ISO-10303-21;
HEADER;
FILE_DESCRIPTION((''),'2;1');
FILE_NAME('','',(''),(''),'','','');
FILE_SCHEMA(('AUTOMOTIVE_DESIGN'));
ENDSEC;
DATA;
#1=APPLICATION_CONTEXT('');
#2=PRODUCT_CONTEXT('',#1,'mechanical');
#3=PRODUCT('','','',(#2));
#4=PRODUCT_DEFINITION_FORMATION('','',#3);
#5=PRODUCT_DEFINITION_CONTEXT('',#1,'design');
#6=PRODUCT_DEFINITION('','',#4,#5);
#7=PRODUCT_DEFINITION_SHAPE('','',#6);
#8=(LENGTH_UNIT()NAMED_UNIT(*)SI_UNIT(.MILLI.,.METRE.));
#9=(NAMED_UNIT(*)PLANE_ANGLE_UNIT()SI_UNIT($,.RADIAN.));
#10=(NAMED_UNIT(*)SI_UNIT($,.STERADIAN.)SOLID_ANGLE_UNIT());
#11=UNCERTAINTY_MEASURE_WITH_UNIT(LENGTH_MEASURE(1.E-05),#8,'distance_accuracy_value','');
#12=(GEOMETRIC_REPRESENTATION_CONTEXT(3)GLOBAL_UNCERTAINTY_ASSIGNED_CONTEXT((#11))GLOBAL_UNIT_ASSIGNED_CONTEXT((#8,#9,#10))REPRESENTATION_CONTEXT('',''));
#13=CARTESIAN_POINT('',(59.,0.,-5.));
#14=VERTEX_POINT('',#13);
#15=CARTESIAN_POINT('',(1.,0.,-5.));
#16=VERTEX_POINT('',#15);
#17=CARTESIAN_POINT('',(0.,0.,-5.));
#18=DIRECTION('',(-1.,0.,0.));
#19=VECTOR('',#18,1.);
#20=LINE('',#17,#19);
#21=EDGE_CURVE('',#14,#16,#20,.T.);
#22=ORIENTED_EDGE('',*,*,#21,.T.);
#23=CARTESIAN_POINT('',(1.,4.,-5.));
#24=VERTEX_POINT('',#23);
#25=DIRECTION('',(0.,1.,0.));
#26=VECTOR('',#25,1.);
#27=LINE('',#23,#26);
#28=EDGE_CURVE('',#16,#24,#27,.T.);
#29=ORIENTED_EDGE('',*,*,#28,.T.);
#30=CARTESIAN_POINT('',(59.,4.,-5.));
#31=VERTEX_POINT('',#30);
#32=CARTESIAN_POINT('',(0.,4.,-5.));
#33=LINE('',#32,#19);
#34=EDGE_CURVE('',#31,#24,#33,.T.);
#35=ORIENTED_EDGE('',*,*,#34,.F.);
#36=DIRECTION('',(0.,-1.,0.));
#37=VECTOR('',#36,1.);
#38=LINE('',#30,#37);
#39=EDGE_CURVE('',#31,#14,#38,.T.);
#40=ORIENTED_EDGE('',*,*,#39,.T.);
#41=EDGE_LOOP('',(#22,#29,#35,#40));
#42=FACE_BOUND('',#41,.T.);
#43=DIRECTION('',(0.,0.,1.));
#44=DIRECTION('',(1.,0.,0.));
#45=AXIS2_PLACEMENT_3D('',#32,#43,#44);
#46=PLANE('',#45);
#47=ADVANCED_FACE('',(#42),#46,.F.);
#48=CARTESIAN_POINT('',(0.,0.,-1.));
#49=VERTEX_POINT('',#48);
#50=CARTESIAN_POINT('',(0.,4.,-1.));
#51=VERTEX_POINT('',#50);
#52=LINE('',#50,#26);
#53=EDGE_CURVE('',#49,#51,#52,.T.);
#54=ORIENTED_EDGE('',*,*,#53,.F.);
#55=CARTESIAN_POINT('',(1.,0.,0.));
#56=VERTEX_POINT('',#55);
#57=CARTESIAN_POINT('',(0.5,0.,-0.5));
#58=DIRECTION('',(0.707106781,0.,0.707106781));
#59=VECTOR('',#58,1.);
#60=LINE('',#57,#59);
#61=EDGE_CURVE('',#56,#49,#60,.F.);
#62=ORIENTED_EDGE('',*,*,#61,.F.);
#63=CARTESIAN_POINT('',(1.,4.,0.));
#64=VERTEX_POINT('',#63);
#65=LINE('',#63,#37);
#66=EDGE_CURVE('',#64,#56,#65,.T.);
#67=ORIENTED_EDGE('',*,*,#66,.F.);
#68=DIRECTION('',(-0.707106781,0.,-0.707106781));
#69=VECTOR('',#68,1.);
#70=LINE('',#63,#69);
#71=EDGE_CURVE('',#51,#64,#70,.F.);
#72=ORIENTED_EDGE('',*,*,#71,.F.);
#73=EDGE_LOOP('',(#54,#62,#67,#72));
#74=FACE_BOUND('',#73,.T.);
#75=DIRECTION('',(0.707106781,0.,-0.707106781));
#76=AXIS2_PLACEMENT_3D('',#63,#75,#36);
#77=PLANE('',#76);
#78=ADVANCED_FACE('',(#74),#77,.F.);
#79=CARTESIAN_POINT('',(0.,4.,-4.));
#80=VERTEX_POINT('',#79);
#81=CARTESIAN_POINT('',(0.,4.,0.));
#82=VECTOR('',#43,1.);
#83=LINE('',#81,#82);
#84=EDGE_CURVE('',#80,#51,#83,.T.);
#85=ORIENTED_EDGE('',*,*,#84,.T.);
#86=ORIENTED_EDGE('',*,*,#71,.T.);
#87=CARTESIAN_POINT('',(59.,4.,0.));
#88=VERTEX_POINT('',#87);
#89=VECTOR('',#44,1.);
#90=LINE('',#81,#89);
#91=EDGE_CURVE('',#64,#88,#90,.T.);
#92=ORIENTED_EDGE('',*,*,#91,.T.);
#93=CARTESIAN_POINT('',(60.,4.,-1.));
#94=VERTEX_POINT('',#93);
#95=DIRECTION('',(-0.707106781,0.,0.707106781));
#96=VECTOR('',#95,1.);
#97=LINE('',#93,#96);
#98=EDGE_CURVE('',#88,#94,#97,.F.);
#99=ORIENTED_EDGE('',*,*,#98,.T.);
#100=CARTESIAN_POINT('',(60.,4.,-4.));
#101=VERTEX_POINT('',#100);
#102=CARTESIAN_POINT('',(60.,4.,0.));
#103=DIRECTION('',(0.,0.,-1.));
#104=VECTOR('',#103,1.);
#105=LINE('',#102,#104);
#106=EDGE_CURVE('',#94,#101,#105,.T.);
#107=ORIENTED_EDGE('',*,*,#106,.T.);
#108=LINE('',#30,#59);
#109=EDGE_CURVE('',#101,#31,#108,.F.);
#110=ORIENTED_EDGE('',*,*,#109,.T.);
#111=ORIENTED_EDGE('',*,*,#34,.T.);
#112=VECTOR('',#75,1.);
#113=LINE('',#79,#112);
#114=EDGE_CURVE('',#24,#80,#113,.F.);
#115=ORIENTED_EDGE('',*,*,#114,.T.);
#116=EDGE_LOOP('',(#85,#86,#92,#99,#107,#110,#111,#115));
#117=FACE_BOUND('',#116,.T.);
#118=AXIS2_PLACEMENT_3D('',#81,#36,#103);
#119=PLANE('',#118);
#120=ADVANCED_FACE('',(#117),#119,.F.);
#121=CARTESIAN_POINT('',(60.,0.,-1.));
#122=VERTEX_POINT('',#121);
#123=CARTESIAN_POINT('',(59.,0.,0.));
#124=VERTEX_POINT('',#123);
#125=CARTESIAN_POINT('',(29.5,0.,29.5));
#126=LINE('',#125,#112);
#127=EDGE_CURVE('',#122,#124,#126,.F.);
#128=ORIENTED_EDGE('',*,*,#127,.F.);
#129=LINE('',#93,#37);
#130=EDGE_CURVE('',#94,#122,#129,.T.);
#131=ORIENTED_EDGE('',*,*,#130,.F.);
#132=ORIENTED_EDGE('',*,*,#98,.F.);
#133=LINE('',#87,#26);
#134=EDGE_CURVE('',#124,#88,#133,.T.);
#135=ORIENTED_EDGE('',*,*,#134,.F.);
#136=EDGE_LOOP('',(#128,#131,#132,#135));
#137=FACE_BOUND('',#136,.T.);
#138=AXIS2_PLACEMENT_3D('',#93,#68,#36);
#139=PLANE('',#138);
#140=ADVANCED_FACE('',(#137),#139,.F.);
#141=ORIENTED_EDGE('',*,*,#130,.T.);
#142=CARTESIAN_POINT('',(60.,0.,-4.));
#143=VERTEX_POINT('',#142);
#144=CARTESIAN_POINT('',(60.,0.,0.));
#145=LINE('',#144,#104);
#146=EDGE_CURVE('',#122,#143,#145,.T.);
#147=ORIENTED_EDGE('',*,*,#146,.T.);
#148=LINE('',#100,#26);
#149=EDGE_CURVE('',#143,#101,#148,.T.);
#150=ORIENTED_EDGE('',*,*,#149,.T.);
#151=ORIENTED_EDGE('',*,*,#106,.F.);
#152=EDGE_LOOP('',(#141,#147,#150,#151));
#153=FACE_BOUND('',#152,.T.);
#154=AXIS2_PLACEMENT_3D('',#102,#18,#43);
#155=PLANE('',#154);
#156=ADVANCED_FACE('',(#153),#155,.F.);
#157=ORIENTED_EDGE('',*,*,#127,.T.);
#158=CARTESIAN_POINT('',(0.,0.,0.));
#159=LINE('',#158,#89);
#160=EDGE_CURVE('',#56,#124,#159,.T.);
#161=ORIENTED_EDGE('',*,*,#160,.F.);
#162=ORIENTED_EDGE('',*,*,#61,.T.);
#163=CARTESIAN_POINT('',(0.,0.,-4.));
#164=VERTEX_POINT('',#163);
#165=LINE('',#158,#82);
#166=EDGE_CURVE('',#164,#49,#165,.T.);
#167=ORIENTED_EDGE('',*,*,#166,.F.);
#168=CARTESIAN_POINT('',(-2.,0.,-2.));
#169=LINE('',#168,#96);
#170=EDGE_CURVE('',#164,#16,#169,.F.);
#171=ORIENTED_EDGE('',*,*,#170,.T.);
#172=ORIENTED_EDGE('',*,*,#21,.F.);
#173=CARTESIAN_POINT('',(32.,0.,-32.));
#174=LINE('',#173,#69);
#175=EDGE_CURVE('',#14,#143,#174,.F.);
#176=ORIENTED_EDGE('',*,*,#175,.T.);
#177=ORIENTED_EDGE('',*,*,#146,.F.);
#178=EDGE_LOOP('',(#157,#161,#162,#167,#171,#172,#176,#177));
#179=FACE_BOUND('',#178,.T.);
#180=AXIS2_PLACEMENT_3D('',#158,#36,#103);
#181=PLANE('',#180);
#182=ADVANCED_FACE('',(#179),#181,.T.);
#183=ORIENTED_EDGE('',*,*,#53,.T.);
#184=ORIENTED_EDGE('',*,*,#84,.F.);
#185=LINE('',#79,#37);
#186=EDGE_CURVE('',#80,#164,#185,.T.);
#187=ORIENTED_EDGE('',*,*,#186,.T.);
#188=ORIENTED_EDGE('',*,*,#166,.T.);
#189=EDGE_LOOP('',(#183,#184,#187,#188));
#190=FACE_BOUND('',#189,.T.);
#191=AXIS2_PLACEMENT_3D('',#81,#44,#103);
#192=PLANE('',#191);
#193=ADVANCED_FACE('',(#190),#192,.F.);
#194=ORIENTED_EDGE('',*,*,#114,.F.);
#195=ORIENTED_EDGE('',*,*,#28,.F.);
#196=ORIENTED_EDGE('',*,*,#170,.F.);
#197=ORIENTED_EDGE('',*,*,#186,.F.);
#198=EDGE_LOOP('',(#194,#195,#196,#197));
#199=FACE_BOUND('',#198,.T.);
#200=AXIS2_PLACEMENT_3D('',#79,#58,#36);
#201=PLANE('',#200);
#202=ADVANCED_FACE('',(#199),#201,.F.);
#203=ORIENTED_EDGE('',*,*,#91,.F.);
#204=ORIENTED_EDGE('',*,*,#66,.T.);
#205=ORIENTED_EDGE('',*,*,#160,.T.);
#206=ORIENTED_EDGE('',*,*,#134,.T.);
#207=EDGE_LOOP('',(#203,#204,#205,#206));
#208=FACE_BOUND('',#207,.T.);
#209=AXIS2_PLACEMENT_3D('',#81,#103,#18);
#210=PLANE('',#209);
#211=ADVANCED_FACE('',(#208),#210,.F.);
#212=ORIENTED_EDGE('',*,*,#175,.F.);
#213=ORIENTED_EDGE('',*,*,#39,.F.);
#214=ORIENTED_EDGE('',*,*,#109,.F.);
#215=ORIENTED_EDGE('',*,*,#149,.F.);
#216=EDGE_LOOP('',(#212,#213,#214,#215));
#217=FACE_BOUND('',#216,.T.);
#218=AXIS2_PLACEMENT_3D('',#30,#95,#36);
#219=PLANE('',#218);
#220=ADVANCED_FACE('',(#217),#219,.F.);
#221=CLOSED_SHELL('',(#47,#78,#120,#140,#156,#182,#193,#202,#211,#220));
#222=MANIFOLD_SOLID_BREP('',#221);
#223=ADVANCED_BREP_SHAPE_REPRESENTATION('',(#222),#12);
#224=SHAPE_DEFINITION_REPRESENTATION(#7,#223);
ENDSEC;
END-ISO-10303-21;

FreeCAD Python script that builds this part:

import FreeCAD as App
import Part
import Sketcher

V = App.Vector
Q = App.Units.Quantity


def edges_at(feature, points):
    """Names of the edges that pass closest to the given points."""
    edges = feature.Shape.Edges
    near = lambda p: min(range(len(edges)), key=lambda i: edges[i].distToShape(Part.Vertex(*p))[0])
    return sorted({f"Edge{near(p) + 1}" for p in points})

doc = App.newDocument("Part")
body = doc.addObject("PartDesign::Body", "Body")

# Sketch on XZ plane
sketch1 = doc.addObject("Sketcher::SketchObject", "Sketch")
body.addObject(sketch1)
sketch1.AttachmentSupport = (doc.XZ_Plane, [""])
sketch1.MapMode = "FlatFace"
sketch1.addGeometry(Part.LineSegment(V(0, -5, 0), V(0, 0, 0)), False)
sketch1.addGeometry(Part.LineSegment(V(0, 0, 0), V(60, 0, 0)), False)
sketch1.addGeometry(Part.LineSegment(V(60, 0, 0), V(60, -5, 0)), False)
sketch1.addGeometry(Part.LineSegment(V(60, -5, 0), V(0, -5, 0)), False)
sketch1.addConstraint(Sketcher.Constraint("Coincident", 0, 2, 1, 1))
sketch1.addConstraint(Sketcher.Constraint("Coincident", 1, 2, 2, 1))
sketch1.addConstraint(Sketcher.Constraint("Coincident", 2, 2, 3, 1))
sketch1.addConstraint(Sketcher.Constraint("Coincident", 3, 2, 0, 1))
sketch1.addConstraint(Sketcher.Constraint("Vertical", 0))
sketch1.addConstraint(Sketcher.Constraint("Horizontal", 1))
sketch1.addConstraint(Sketcher.Constraint("Vertical", 2))
sketch1.addConstraint(Sketcher.Constraint("Horizontal", 3))
sketch1.addConstraint(Sketcher.Constraint("Coincident", 0, 2, -1, 1))
sketch1.addConstraint(Sketcher.Constraint("DistanceX", 1, 1, 1, 2, Q("60 mm")))
sketch1.addConstraint(Sketcher.Constraint("DistanceY", 0, 1, 0, 2, Q("5 mm")))
pad1 = doc.addObject("PartDesign::Pad", "Pad")
body.addObject(pad1)
pad1.Profile = sketch1
pad1.Length = 4
pad1.Reversed = True
doc.recompute()

chamfer = doc.addObject("PartDesign::Chamfer", "Chamfer")
body.addObject(chamfer)
chamfer.Base = (pad1, edges_at(pad1, [
    (0, 2, -5),
    (60, 2, -5),
    (60, 2, 0),
    (0, 2, 0),
]))
chamfer.Size = 1

doc.recompute()
